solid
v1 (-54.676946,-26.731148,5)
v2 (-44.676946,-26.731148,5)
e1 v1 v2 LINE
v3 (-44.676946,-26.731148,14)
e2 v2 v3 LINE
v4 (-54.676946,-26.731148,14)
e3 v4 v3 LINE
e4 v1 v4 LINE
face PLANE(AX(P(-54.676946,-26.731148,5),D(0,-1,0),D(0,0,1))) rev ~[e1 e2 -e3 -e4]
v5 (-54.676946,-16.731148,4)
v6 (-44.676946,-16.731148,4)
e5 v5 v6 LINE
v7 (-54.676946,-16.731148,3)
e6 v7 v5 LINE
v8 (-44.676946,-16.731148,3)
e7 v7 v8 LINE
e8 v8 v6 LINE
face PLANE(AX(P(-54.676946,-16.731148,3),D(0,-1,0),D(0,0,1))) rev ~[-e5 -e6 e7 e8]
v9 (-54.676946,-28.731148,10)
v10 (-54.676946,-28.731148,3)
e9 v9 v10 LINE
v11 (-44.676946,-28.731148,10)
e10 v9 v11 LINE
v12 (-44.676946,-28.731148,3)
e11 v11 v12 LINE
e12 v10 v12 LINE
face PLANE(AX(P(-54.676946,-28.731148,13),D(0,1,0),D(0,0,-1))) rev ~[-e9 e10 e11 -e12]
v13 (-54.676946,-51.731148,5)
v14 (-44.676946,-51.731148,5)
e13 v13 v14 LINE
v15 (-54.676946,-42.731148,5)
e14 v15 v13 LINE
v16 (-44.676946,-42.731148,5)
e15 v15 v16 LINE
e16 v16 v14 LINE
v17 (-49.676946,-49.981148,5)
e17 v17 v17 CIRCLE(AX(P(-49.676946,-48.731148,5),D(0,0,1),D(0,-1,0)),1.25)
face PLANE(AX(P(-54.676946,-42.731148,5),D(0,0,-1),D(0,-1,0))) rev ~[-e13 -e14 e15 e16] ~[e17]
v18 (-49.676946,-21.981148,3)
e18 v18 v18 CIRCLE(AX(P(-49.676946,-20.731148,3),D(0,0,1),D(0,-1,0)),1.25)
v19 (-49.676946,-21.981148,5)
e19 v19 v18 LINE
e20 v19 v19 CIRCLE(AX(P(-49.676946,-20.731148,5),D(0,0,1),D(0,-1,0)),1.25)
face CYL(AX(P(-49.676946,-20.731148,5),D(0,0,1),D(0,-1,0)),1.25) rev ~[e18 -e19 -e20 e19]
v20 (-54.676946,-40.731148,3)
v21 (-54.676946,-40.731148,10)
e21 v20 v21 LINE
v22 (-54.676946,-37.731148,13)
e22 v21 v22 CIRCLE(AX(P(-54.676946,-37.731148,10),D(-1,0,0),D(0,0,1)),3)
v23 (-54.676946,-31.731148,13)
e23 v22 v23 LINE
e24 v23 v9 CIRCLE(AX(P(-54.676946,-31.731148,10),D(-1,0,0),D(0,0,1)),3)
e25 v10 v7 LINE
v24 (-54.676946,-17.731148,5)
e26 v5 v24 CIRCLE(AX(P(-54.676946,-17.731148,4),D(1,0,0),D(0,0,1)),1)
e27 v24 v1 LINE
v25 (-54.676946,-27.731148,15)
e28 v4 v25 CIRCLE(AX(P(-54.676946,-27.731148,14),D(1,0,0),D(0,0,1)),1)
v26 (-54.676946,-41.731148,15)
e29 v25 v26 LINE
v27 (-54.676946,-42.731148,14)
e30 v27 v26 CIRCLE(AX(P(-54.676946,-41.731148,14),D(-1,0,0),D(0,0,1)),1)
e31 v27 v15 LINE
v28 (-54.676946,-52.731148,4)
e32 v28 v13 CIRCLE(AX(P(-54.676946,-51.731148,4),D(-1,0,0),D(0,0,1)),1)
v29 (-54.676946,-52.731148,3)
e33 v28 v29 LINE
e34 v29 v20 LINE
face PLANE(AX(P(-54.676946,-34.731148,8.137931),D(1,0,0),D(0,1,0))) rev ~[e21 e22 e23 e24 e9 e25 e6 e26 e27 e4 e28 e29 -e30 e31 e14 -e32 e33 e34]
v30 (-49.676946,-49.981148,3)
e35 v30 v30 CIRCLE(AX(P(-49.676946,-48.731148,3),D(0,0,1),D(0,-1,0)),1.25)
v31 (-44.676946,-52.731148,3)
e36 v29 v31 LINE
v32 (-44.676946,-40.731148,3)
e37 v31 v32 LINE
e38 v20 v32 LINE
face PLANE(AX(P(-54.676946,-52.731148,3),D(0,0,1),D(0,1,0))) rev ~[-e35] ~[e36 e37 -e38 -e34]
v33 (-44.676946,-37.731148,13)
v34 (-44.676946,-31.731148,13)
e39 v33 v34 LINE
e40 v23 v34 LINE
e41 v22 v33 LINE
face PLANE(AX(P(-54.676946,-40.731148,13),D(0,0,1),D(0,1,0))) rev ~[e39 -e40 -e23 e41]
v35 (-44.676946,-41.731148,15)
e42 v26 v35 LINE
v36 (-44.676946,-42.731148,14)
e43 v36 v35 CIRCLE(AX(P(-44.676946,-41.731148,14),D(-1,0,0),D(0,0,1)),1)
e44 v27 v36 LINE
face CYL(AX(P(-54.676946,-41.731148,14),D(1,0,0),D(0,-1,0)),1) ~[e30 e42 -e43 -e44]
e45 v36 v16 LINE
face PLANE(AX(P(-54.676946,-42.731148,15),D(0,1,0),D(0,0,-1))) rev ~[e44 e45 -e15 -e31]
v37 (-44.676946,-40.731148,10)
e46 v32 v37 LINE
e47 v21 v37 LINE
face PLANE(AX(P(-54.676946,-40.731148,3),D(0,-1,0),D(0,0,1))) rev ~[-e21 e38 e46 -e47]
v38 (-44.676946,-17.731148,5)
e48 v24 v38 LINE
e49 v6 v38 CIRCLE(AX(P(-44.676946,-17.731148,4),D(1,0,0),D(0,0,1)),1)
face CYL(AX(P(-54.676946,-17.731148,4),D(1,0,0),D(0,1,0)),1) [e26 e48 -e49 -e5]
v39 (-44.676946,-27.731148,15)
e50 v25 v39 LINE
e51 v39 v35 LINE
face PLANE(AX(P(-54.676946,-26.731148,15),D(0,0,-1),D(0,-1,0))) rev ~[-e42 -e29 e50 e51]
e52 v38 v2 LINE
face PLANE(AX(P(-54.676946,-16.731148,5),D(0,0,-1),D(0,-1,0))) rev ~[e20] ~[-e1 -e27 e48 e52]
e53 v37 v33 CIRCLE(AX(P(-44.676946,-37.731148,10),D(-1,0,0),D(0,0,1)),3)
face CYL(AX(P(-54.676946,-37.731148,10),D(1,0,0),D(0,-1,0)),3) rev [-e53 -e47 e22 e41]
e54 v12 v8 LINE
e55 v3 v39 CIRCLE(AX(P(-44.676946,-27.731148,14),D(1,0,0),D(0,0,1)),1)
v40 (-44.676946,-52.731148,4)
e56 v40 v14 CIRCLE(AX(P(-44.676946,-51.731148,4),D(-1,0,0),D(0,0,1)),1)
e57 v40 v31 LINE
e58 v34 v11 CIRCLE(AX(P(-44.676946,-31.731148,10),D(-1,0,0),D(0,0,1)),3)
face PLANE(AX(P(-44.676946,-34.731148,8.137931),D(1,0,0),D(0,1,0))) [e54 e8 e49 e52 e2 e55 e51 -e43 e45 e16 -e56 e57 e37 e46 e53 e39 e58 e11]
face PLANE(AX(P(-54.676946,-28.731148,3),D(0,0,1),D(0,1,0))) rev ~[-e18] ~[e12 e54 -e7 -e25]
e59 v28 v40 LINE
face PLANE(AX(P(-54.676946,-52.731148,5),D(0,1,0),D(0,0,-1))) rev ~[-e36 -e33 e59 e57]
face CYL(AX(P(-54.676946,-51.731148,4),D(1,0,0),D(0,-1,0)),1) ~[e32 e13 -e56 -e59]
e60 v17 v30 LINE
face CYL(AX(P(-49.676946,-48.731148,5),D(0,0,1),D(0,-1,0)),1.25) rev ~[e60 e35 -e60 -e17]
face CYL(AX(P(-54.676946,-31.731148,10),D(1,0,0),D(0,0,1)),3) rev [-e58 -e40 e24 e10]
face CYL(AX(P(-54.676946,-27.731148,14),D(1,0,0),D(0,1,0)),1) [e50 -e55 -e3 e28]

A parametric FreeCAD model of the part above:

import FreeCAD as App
import Part
import Sketcher
from FreeCAD import Vector
Q = App.Units.Quantity


def edges_at(feature, points):
    """Names of the edges that pass closest to the given points."""
    edges = feature.Shape.Edges
    near = lambda p: min(range(len(edges)), key=lambda i: edges[i].distToShape(Part.Vertex(*p))[0])
    return sorted({f"Edge{near(p) + 1}" for p in points})


def add_polygon(sketch, points):
    """Adds a closed chain of lines whose ends are joined by coincident constraints."""
    first, n = sketch.GeometryCount, len(points)
    for a, b in zip(points, points[1:] + points[:1]):
        sketch.addGeometry(Part.LineSegment(App.Vector(*a, 0), App.Vector(*b, 0)), False)
    for i in range(n):
        sketch.addConstraint(Sketcher.Constraint("Coincident", first + i, 2, first + (i + 1) % n, 1))

doc = App.newDocument("Part")
body = doc.addObject("PartDesign::Body", "Body")

# Sketch on YZ plane
sketch1 = body.newObject("Sketcher::SketchObject", "Sketch")
sketch1.AttachmentSupport = (doc.getObject("YZ_Plane"), [""])
sketch1.MapMode = "FlatFace"
add_polygon(sketch1, [(-6, 3), (-6, 13), (6, 13), (6, 3), (18, 3), (18, 5), (8, 5), (8, 15), (-8, 15), (-8, 5), (-18, 5), (-18, 3)])  # lines 0-11
sketch1.addConstraint([
    Sketcher.Constraint("Vertical", 0),
    Sketcher.Constraint("Horizontal", 1),
    Sketcher.Constraint("Vertical", 2),
    Sketcher.Constraint("Horizontal", 3),
    Sketcher.Constraint("Vertical", 4),
    Sketcher.Constraint("Horizontal", 5),
    Sketcher.Constraint("Vertical", 6),
    Sketcher.Constraint("Horizontal", 7),
    Sketcher.Constraint("Vertical", 8),
    Sketcher.Constraint("Horizontal", 9),
    Sketcher.Constraint("Vertical", 10),
    Sketcher.Constraint("Horizontal", 11),
    Sketcher.Constraint("Symmetric", 5, 2, 8, 2, -2),
    Sketcher.Constraint("Symmetric", 3, 2, 10, 2, -2),
    Sketcher.Constraint("Equal", 1, 3),
    Sketcher.Constraint("Equal", 3, 11),
    Sketcher.Constraint("Equal", 9, 0),
    Sketcher.Constraint("Equal", 2, 6),
    Sketcher.Constraint("DistanceX", 1, 1, 1, 2, Q("12 mm")),
    Sketcher.Constraint("DistanceX", 5, 2, 5, 1, Q("10 mm")),
    Sketcher.Constraint("DistanceY", 4, 1, 4, 2, Q("2 mm")),
    Sketcher.Constraint("DistanceY", -1, 1, 0, 2, Q("13 mm")),
])
pad1 = body.newObject("PartDesign::Pad", "Pad")
pad1.Profile = sketch1
pad1.Length = 10
doc.recompute()

fillet = body.newObject("PartDesign::Fillet", "Fillet")
fillet.Base = (pad1, edges_at(pad1, [(5, -6, 13)]))
fillet.Radius = 3
doc.recompute()

fillet2 = body.newObject("PartDesign::Fillet", "Fillet001")
fillet2.Base = (fillet, edges_at(fillet, [(5, 6, 13)]))
fillet2.Radius = 3
doc.recompute()

fillet3 = body.newObject("PartDesign::Fillet", "Fillet002")
fillet3.Base = (fillet2, edges_at(fillet2, [
    (5, 18, 5),
    (5, 8, 15),
    (5, -8, 15),
    (5, -18, 5),
]))
fillet3.Radius = 1

# Sketch on XY plane
sketch2 = body.newObject("Sketcher::SketchObject", "Sketch001")
sketch2.AttachmentSupport = (doc.getObject("XY_Plane"), [""])
sketch2.MapMode = "FlatFace"
sketch2.AttachmentOffset = App.Placement(Vector(0, 0, 5), App.Rotation())
sketch2.addGeometry([
    Part.Circle(Vector(5, -14, 0), Vector(0, 0, 1), 1.2),
    Part.Circle(Vector(5, 14, 0), Vector(0, 0, 1), 1.2),
], False)
sketch2.addConstraint([
    Sketcher.Constraint("Equal", 0, 1),
    Sketcher.Constraint("Symmetric", 0, 3, 1, 3, -1),
    Sketcher.Constraint("Diameter", 0, Q("2.5 mm")),
    Sketcher.Constraint("DistanceX", -1, 1, 0, 3, Q("5 mm")),
    Sketcher.Constraint("DistanceY", 0, 3, -1, 1, Q("14 mm")),
])
pocket1 = body.newObject("PartDesign::Pocket", "Pocket")
pocket1.Profile = sketch2
pocket1.Type = "ThroughAll"
body2 = doc.addObject("PartDesign::Body", "Body001")
doc.recompute()

body.Placement = App.Placement(Vector(-54.676946, -34.731148, 0), App.Rotation(Vector(0, 0, 1), 0))
boolean = body2.newObject("PartDesign::Boolean", "Boolean")
boolean.Type = "Fuse"
boolean.addObjects([body])

doc.recompute()
